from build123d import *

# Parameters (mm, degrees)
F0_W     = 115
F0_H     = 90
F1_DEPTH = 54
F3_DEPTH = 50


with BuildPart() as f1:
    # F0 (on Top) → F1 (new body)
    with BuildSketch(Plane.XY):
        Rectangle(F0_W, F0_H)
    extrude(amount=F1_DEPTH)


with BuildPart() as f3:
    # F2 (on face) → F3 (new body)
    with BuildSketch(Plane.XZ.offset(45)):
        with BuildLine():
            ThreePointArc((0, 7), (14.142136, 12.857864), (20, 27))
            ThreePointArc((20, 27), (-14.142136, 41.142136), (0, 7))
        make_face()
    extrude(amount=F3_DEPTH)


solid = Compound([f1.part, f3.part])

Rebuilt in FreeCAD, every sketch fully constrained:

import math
import FreeCAD as App
import Part
import Sketcher

V = App.Vector
Q = App.Units.Quantity


def add_polygon(sketch, points):
    """Adds a closed chain of lines whose ends are joined by coincident constraints."""
    first, n = sketch.GeometryCount, len(points)
    for a, b in zip(points, points[1:] + points[:1]):
        sketch.addGeometry(Part.LineSegment(App.Vector(*a, 0), App.Vector(*b, 0)), False)
    for i in range(n):
        sketch.addConstraint(Sketcher.Constraint("Coincident", first + i, 2, first + (i + 1) % n, 1))

doc = App.newDocument("Part")
params = doc.addObject("Spreadsheet::Sheet", "Params")
for row, (alias, value) in enumerate([
    ("sketch1_width", "115 mm"),
    ("sketch1_height", "90 mm"),
    ("pad1_length", "54 mm"),
    ("sketch2_radius", "19.999999 mm"),
    ("pad2_length", "50 mm"),
], start=1):
    params.set(f"A{row}", alias)
    params.set(f"B{row}", "=" + value)
    params.setAlias(f"B{row}", alias)

body = doc.addObject("PartDesign::Body", "Body")

# Sketch on XY plane
sketch1 = body.newObject("Sketcher::SketchObject", "Sketch")
sketch1.AttachmentSupport = (doc.getObject("XY_Plane"), [""])
sketch1.MapMode = "FlatFace"
add_polygon(sketch1, [(-57.5, 45), (-57.5, -45), (57.5, -45), (57.5, 45)])  # lines 0-3
sketch1.addConstraint([
    Sketcher.Constraint("Vertical", 0),
    Sketcher.Constraint("Horizontal", 1),
    Sketcher.Constraint("Vertical", 2),
    Sketcher.Constraint("Horizontal", 3),
    Sketcher.Constraint("Symmetric", 0, 2, 2, 2, -1, 1),
    Sketcher.Constraint("DistanceX", 1, 1, 1, 2, Q("115 mm")),
    Sketcher.Constraint("DistanceY", 0, 2, 0, 1, Q("90 mm")),
])
sketch1.setExpression("Constraints[9]", "Params.sketch1_width")
sketch1.setExpression("Constraints[10]", "Params.sketch1_height")
pad1 = body.newObject("PartDesign::Pad", "Pad")
pad1.Profile = sketch1
pad1.setExpression("Length", "Params.pad1_length")
body2 = doc.addObject("PartDesign::Body", "Body001")

# Sketch on XZ plane
sketch2 = body2.newObject("Sketcher::SketchObject", "Sketch001")
sketch2.AttachmentSupport = (doc.getObject("XZ_Plane001"), [""])
sketch2.MapMode = "FlatFace"
sketch2.AttachmentOffset = App.Placement(V(0, 0, 45), App.Rotation())
sketch2.addGeometry([
    Part.ArcOfCircle(Part.Circle(V(0.000001, 26.999999, 0), V(0, 0, 1), 19.999999), math.radians(-90.000004), math.radians(0.000004)),
    Part.ArcOfCircle(Part.Circle(V(0, 27, 0), V(0, 0, 1), 20), math.radians(-0.000001), math.radians(270.000001)),
], False)
sketch2.addConstraint([
    Sketcher.Constraint("Tangent", 0, 1, 1, 2),
    Sketcher.Constraint("Coincident", 1, 1, 0, 2),
    Sketcher.Constraint("PointOnObject", 0, 3, -2),
    Sketcher.Constraint("PointOnObject", 0, 1, -2),
    Sketcher.Constraint("Horizontal", 0, 3, 1, 1),
    Sketcher.Constraint("Radius", 0, Q("19.999999 mm")),
    Sketcher.Constraint("DistanceY", -1, 1, 0, 3, Q("26.999999 mm")),
])
sketch2.setExpression("Constraints[5]", "Params.sketch2_radius")
pad2 = body2.newObject("PartDesign::Pad", "Pad001")
pad2.Profile = sketch2
pad2.setExpression("Length", "Params.pad2_length")

doc.recompute()
